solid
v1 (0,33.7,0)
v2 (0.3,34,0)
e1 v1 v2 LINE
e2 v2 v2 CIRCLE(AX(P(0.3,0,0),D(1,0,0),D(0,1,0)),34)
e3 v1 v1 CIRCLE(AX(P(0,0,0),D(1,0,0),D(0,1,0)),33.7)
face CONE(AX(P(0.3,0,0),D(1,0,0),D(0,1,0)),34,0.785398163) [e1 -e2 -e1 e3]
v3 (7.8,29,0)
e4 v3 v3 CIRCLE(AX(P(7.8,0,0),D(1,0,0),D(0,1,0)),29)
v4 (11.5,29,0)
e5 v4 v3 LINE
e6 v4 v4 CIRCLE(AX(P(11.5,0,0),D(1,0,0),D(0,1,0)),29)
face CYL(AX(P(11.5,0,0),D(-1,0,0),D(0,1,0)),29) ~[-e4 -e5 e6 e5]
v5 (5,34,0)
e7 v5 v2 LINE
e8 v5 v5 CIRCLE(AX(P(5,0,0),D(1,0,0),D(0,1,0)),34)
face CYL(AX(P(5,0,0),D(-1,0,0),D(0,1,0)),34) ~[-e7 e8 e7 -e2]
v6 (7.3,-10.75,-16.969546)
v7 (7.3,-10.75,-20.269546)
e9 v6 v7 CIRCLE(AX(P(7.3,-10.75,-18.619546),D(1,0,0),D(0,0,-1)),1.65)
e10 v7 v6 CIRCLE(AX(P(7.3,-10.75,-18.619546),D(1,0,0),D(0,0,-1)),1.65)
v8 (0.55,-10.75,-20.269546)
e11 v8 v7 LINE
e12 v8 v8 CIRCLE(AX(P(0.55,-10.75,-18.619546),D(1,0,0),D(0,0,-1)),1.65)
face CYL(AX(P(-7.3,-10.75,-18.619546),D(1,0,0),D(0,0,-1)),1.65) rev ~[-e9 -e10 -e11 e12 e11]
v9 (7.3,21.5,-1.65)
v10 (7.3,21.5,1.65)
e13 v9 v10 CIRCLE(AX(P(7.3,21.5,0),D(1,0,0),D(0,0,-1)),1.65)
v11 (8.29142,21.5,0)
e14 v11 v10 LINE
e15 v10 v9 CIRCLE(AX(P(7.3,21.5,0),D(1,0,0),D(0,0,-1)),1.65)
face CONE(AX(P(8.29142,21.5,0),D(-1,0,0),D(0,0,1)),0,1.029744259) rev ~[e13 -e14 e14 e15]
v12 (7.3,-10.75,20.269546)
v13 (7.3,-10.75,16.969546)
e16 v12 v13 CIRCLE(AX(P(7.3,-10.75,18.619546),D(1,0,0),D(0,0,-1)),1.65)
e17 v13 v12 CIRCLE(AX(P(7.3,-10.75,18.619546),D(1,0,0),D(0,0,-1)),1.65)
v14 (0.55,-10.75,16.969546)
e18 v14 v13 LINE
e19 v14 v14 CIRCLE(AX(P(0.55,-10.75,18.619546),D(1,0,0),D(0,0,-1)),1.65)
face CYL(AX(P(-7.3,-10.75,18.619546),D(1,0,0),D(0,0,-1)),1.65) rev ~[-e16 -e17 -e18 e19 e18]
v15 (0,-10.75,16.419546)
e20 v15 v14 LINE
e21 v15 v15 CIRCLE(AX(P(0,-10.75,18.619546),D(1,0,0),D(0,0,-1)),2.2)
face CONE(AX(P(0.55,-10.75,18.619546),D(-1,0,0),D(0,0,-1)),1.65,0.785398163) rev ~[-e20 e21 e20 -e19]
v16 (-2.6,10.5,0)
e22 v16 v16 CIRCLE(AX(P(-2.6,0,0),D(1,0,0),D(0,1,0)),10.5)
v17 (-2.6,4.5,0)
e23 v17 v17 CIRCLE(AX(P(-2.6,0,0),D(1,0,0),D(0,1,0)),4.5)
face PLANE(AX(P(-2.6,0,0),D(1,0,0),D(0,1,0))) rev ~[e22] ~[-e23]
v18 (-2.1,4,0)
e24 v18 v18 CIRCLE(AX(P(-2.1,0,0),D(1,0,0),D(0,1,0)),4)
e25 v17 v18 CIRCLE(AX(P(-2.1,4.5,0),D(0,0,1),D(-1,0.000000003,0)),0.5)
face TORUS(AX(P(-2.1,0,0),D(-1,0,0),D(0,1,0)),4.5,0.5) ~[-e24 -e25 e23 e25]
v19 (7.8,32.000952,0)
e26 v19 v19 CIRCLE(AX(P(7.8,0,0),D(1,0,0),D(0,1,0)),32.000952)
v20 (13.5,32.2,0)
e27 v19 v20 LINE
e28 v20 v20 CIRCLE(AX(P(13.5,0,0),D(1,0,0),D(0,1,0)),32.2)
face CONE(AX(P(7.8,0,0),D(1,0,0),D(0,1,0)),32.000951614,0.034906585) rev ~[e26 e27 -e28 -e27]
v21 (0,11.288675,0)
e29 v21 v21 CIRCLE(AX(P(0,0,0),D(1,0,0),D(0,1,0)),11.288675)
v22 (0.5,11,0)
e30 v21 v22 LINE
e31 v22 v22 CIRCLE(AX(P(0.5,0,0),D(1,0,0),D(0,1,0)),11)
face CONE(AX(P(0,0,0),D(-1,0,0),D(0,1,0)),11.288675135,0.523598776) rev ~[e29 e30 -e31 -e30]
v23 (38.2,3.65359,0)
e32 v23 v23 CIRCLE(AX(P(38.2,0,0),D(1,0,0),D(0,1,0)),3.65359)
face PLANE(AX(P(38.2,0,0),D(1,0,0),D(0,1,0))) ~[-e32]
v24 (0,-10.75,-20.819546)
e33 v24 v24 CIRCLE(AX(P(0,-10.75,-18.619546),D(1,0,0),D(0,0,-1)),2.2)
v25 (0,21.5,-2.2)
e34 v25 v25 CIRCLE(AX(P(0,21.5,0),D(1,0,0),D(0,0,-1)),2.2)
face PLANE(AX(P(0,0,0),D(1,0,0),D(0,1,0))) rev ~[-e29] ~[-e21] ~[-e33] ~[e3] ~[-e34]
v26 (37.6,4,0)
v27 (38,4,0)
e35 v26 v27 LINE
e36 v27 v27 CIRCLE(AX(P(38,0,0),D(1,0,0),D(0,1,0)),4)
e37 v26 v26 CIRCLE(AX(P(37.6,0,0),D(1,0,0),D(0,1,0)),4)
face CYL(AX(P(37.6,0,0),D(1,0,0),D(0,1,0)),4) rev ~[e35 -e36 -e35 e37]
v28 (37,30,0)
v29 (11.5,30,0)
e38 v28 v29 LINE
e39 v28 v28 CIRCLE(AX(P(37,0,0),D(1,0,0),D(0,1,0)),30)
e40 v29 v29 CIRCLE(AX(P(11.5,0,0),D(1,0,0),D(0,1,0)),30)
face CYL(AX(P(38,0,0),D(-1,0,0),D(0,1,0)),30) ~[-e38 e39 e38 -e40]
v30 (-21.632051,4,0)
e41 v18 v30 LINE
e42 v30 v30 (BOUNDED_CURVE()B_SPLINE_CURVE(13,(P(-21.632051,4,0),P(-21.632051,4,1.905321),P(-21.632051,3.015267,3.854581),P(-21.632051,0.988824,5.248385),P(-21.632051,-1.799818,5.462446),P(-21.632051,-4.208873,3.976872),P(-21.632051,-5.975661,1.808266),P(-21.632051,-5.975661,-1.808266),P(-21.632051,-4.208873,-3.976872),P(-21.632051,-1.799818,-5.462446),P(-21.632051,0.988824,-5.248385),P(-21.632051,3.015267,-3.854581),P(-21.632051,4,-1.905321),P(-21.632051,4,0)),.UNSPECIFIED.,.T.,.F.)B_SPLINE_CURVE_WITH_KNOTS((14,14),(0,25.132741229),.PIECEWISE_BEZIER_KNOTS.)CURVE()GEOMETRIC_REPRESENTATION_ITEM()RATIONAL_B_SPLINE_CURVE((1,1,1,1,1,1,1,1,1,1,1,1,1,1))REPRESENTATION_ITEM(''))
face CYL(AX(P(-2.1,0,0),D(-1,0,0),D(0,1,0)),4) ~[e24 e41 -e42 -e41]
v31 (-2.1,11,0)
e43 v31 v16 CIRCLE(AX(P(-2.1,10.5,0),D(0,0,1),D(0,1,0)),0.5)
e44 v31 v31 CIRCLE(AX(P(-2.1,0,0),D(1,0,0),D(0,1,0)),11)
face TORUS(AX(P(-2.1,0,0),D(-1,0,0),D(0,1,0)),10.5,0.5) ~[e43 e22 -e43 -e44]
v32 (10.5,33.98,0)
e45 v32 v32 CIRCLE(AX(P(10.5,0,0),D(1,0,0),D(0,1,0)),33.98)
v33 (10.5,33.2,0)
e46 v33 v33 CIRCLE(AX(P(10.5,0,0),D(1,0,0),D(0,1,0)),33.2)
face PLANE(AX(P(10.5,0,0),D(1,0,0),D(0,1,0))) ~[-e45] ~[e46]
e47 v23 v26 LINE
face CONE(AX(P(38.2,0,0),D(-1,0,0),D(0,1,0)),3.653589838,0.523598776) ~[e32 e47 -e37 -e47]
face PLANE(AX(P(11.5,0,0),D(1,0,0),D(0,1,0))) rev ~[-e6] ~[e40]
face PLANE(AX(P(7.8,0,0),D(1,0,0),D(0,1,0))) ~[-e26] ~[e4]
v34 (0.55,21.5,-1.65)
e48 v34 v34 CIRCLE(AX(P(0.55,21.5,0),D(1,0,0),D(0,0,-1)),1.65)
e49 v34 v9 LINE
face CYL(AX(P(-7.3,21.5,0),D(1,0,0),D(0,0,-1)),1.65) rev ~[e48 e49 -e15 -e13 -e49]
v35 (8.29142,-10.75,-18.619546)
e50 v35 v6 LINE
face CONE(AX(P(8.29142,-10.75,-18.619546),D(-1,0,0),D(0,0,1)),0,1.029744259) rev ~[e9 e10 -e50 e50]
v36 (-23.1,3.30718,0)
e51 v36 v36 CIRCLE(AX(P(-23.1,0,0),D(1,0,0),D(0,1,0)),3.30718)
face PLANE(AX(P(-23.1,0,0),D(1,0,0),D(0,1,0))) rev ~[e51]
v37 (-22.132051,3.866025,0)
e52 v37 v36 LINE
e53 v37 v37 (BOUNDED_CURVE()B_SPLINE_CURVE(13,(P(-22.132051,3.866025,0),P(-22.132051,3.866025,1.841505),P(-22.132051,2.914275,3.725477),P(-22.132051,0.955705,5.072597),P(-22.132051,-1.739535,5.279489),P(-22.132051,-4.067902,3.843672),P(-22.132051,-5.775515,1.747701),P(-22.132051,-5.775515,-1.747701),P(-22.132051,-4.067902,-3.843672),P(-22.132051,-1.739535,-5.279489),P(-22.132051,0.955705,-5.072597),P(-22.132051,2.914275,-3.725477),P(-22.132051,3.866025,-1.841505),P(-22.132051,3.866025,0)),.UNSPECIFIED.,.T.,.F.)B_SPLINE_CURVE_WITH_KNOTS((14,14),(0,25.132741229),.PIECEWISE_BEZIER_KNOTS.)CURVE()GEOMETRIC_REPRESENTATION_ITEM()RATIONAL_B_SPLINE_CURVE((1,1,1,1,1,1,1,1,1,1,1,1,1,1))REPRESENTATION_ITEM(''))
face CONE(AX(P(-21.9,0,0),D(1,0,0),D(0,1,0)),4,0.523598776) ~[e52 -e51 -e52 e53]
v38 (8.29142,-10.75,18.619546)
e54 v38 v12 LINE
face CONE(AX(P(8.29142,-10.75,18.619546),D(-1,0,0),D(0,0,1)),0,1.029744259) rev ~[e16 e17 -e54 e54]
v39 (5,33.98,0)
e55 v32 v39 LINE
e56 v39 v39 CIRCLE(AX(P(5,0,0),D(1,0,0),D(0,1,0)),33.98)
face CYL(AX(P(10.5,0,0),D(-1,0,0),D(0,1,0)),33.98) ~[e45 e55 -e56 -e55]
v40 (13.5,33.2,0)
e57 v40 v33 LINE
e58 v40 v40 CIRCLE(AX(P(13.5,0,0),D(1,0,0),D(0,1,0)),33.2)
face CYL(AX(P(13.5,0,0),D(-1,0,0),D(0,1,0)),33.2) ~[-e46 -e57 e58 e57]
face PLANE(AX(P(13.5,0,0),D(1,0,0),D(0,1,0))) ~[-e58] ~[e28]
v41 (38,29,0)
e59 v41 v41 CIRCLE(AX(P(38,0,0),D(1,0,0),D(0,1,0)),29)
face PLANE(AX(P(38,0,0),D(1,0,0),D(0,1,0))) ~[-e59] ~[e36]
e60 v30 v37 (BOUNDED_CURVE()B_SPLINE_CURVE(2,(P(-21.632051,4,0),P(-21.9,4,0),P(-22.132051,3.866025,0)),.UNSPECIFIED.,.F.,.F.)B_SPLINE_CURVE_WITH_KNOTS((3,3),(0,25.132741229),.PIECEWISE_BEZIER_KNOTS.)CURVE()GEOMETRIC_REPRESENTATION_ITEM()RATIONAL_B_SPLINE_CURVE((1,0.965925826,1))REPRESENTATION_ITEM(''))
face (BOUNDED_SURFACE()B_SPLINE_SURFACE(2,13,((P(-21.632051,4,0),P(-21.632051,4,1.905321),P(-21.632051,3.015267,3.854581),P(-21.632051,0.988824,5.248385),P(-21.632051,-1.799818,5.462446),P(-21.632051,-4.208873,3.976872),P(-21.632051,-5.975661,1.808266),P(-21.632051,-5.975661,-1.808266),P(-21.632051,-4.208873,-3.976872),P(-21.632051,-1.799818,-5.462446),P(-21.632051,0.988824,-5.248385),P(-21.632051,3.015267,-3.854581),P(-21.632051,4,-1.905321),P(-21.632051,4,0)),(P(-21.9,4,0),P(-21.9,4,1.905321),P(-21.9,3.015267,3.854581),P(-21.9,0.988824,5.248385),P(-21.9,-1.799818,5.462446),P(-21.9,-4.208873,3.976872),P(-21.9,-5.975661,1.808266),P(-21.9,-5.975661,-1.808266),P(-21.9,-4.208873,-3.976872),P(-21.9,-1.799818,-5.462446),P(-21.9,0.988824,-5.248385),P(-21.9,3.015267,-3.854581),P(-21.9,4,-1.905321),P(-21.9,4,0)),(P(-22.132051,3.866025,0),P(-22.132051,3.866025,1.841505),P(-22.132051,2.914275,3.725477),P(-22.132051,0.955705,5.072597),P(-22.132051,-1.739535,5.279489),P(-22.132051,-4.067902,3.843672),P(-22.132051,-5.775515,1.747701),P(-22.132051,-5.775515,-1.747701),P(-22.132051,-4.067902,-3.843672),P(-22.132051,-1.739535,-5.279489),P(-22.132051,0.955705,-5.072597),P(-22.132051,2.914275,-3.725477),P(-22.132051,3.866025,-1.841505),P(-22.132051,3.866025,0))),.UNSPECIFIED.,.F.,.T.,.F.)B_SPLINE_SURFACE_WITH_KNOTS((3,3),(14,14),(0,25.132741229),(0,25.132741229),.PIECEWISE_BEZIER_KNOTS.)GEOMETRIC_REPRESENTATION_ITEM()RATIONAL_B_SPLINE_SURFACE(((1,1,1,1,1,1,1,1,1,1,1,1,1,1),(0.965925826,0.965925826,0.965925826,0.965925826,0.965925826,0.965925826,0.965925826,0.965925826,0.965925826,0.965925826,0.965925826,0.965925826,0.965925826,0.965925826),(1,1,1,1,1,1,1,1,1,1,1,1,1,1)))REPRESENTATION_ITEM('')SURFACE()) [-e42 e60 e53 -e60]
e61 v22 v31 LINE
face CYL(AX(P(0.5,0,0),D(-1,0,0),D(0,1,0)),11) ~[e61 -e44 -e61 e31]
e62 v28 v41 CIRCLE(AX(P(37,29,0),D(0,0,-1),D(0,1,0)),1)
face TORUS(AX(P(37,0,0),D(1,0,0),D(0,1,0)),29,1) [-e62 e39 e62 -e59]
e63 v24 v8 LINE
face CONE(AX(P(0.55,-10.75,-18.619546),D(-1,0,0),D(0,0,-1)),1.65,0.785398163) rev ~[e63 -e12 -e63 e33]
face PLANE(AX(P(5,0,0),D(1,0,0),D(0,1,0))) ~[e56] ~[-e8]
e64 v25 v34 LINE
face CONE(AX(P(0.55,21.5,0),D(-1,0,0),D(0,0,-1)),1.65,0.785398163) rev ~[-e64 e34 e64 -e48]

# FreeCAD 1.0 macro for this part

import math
import FreeCAD as App
import Part
import Sketcher
from FreeCAD import Vector
Q = App.Units.Quantity


def edges_at(feature, points):
    """Names of the edges that pass closest to the given points."""
    edges = feature.Shape.Edges
    near = lambda p: min(range(len(edges)), key=lambda i: edges[i].distToShape(Part.Vertex(*p))[0])
    return sorted({f"Edge{near(p) + 1}" for p in points})

doc = App.newDocument("Part")
body = doc.addObject("PartDesign::Body", "Body")

# Sketch on XY plane
sketch1 = body.newObject("Sketcher::SketchObject", "Sketch")
sketch1.AttachmentSupport = (doc.getObject("XY_Plane"), [""])
sketch1.MapMode = "FlatFace"
sketch1.addGeometry(Part.LineSegment(Vector(-23.1, 3.30718, 0), Vector(-23.1, 0, 0)), False)
sketch1.addGeometry(Part.LineSegment(Vector(-23.1, 0, 0), Vector(38.2, 0, 0)), False)
sketch1.addGeometry(Part.LineSegment(Vector(38.2, 0, 0), Vector(38.2, 3.65359, 0)), False)
sketch1.addGeometry(Part.LineSegment(Vector(38.2, 3.65359, 0), Vector(37.6, 4, 0)), False)
sketch1.addGeometry(Part.LineSegment(Vector(37.6, 4, 0), Vector(38, 4, 0)), False)
sketch1.addGeometry(Part.LineSegment(Vector(38, 4, 0), Vector(38, 30, 0)), False)
sketch1.addGeometry(Part.LineSegment(Vector(38, 30, 0), Vector(11.5, 30, 0)), False)
sketch1.addGeometry(Part.LineSegment(Vector(11.5, 30, 0), Vector(11.5, 29, 0)), False)
sketch1.addGeometry(Part.LineSegment(Vector(11.5, 29, 0), Vector(7.8, 29, 0)), False)
sketch1.addGeometry(Part.LineSegment(Vector(7.8, 29, 0), Vector(7.8, 32.000952, 0)), False)
sketch1.addGeometry(Part.LineSegment(Vector(7.8, 32.000952, 0), Vector(13.5, 32.2, 0)), False)
sketch1.addGeometry(Part.LineSegment(Vector(13.5, 32.2, 0), Vector(13.5, 33.2, 0)), False)
sketch1.addGeometry(Part.LineSegment(Vector(13.5, 33.2, 0), Vector(10.5, 33.2, 0)), False)
sketch1.addGeometry(Part.LineSegment(Vector(10.5, 33.2, 0), Vector(10.5, 33.98, 0)), False)
sketch1.addGeometry(Part.LineSegment(Vector(10.5, 33.98, 0), Vector(5, 33.98, 0)), False)
sketch1.addGeometry(Part.LineSegment(Vector(5, 33.98, 0), Vector(5, 34, 0)), False)
sketch1.addGeometry(Part.LineSegment(Vector(5, 34, 0), Vector(0, 34, 0)), False)
sketch1.addGeometry(Part.LineSegment(Vector(0, 34, 0), Vector(0, 11.288675, 0)), False)
sketch1.addGeometry(Part.LineSegment(Vector(0, 11.288675, 0), Vector(0.5, 11, 0)), False)
sketch1.addGeometry(Part.LineSegment(Vector(0.5, 11, 0), Vector(-2.6, 11, 0)), False)
sketch1.addGeometry(Part.LineSegment(Vector(-2.6, 11, 0), Vector(-2.6, 4.5, 0)), False)
sketch1.addGeometry(Part.ArcOfCircle(Part.Circle(Vector(-2.1, 4.5, 0), Vector(0, 0, 1), 0.5), math.radians(180), math.radians(270)), False)
sketch1.addGeometry(Part.LineSegment(Vector(-2.1, 4, 0), Vector(-21.9, 4, 0)), False)
sketch1.addGeometry(Part.LineSegment(Vector(-21.9, 4, 0), Vector(-23.1, 3.30718, 0)), False)
sketch1.addConstraint(Sketcher.Constraint("Coincident", 0, 2, 1, 1))
sketch1.addConstraint(Sketcher.Constraint("Coincident", 1, 2, 2, 1))
sketch1.addConstraint(Sketcher.Constraint("Coincident", 2, 2, 3, 1))
sketch1.addConstraint(Sketcher.Constraint("Coincident", 3, 2, 4, 1))
sketch1.addConstraint(Sketcher.Constraint("Coincident", 4, 2, 5, 1))
sketch1.addConstraint(Sketcher.Constraint("Coincident", 5, 2, 6, 1))
sketch1.addConstraint(Sketcher.Constraint("Coincident", 6, 2, 7, 1))
sketch1.addConstraint(Sketcher.Constraint("Coincident", 7, 2, 8, 1))
sketch1.addConstraint(Sketcher.Constraint("Coincident", 8, 2, 9, 1))
sketch1.addConstraint(Sketcher.Constraint("Coincident", 9, 2, 10, 1))
sketch1.addConstraint(Sketcher.Constraint("Coincident", 10, 2, 11, 1))
sketch1.addConstraint(Sketcher.Constraint("Coincident", 11, 2, 12, 1))
sketch1.addConstraint(Sketcher.Constraint("Coincident", 12, 2, 13, 1))
sketch1.addConstraint(Sketcher.Constraint("Coincident", 13, 2, 14, 1))
sketch1.addConstraint(Sketcher.Constraint("Coincident", 14, 2, 15, 1))
sketch1.addConstraint(Sketcher.Constraint("Coincident", 15, 2, 16, 1))
sketch1.addConstraint(Sketcher.Constraint("Coincident", 16, 2, 17, 1))
sketch1.addConstraint(Sketcher.Constraint("Coincident", 17, 2, 18, 1))
sketch1.addConstraint(Sketcher.Constraint("Coincident", 18, 2, 19, 1))
sketch1.addConstraint(Sketcher.Constraint("Coincident", 19, 2, 20, 1))
sketch1.addConstraint(Sketcher.Constraint("Tangent", 20, 2, 21, 1))
sketch1.addConstraint(Sketcher.Constraint("Tangent", 21, 2, 22, 1))
sketch1.addConstraint(Sketcher.Constraint("Coincident", 22, 2, 23, 1))
sketch1.addConstraint(Sketcher.Constraint("Coincident", 23, 2, 0, 1))
sketch1.addConstraint(Sketcher.Constraint("Vertical", 0))
sketch1.addConstraint(Sketcher.Constraint("Horizontal", 1))
sketch1.addConstraint(Sketcher.Constraint("Vertical", 2))
sketch1.addConstraint(Sketcher.Constraint("Horizontal", 4))
sketch1.addConstraint(Sketcher.Constraint("Vertical", 5))
sketch1.addConstraint(Sketcher.Constraint("Horizontal", 6))
sketch1.addConstraint(Sketcher.Constraint("Vertical", 7))
sketch1.addConstraint(Sketcher.Constraint("Horizontal", 8))
sketch1.addConstraint(Sketcher.Constraint("Vertical", 9))
sketch1.addConstraint(Sketcher.Constraint("Vertical", 11))
sketch1.addConstraint(Sketcher.Constraint("Horizontal", 12))
sketch1.addConstraint(Sketcher.Constraint("Vertical", 13))
sketch1.addConstraint(Sketcher.Constraint("Horizontal", 14))
sketch1.addConstraint(Sketcher.Constraint("Vertical", 15))
sketch1.addConstraint(Sketcher.Constraint("Horizontal", 16))
sketch1.addConstraint(Sketcher.Constraint("Vertical", 17))
sketch1.addConstraint(Sketcher.Constraint("Horizontal", 19))
sketch1.addConstraint(Sketcher.Constraint("Vertical", 20))
sketch1.addConstraint(Sketcher.Constraint("Horizontal", 22))
sketch1.addConstraint(Sketcher.Constraint("PointOnObject", 0, 2, -1))
sketch1.addConstraint(Sketcher.Constraint("PointOnObject", 16, 2, -2))
sketch1.addConstraint(Sketcher.Constraint("Parallel", 3, 18))
sketch1.addConstraint(Sketcher.Constraint("Horizontal", 4, 2, 21, 2))
sketch1.addConstraint(Sketcher.Constraint("Equal", 7, 11))
sketch1.addConstraint(Sketcher.Constraint("Radius", 21, 0.5))
sketch1.addConstraint(Sketcher.Constraint("DistanceX", 12, 2, 12, 1, 3.0))
sketch1.addConstraint(Sketcher.Constraint("DistanceX", 16, 2, 16, 1, 5.0))
sketch1.addConstraint(Sketcher.Constraint("DistanceY", 5, 1, 5, 2, 26.0))
sketch1.addConstraint(Sketcher.Constraint("DistanceY", 7, 2, 7, 1, 1.0))
sketch1.addConstraint(Sketcher.Constraint("Angle", 3, Q("150 deg")))
sketch1.addConstraint(Sketcher.Constraint("Angle", 10, Q("2 deg")))
sketch1.addConstraint(Sketcher.Constraint("Angle", 23, Q("-150 deg")))
sketch1.addConstraint(Sketcher.Constraint("DistanceX", 1, 1, 1, 2, 61.3))
sketch1.addConstraint(Sketcher.Constraint("DistanceX", 4, 1, 4, 2, 0.4))
sketch1.addConstraint(Sketcher.Constraint("DistanceX", 6, 2, 6, 1, 26.5))
sketch1.addConstraint(Sketcher.Constraint("DistanceX", 8, 2, 8, 1, 3.7))
sketch1.addConstraint(Sketcher.Constraint("DistanceX", 14, 2, 14, 1, 5.5))
sketch1.addConstraint(Sketcher.Constraint("DistanceX", 19, 2, 19, 1, 3.1))
sketch1.addConstraint(Sketcher.Constraint("DistanceX", 22, 2, 22, 1, 19.8))
sketch1.addConstraint(Sketcher.Constraint("DistanceY", 20, 2, 20, 1, 6.5))
sketch1.addConstraint(Sketcher.Constraint("DistanceY", -1, 1, 3, 2, 4.0))
sketch1.addConstraint(Sketcher.Constraint("DistanceX", -1, 1, 4, 2, 38.0))
sketch1.addConstraint(Sketcher.Constraint("DistanceY", -1, 1, 15, 2, 34.0))
sketch1.addConstraint(Sketcher.Constraint("DistanceX", 0, 2, 21, 3, 21.0))
sketch1.addConstraint(Sketcher.Constraint("DistanceX", 18, 2, 7, 2, 11.0))
sketch1.addConstraint(Sketcher.Constraint("DistanceY", 13, 1, 13, 2, 0.78))
sketch1.addConstraint(Sketcher.Constraint("DistanceY", 15, 1, 15, 2, 0.02))
revolution = body.newObject("PartDesign::Revolution", "Revolution")
revolution.Profile = sketch1
revolution.ReferenceAxis = (sketch1, ["H_Axis"])
revolution.Angle = 360

# Sketch on YZ plane
sketch2 = body.newObject("Sketcher::SketchObject", "Sketch001")
sketch2.AttachmentSupport = (doc.getObject("YZ_Plane"), [""])
sketch2.MapMode = "FlatFace"
sketch2.addGeometry(Part.Circle(Vector(21.5, 0, 0), Vector(0, 0, 1), 1.6), False)
sketch2.addGeometry(Part.Circle(Vector(-10.8, 18.6, 0), Vector(0, 0, 1), 1.6), False)
sketch2.addGeometry(Part.Circle(Vector(-10.8, -18.6, 0), Vector(0, 0, 1), 1.6), False)
sketch2.addConstraint(Sketcher.Constraint("Equal", 0, 1))
sketch2.addConstraint(Sketcher.Constraint("Equal", 1, 2))
sketch2.addConstraint(Sketcher.Constraint("Symmetric", 1, 3, 2, 3, -1))
sketch2.addConstraint(Sketcher.Constraint("PointOnObject", 0, 3, -1))
sketch2.addConstraint(Sketcher.Constraint("Diameter", 0, 3.3))
sketch2.addConstraint(Sketcher.Constraint("DistanceX", -1, 1, 0, 3, 21.5))
sketch2.addConstraint(Sketcher.Constraint("DistanceX", 1, 3, -1, 1, 10.75))
sketch2.addConstraint(Sketcher.Constraint("DistanceY", -1, 1, 1, 3, 18.619546))
doc.recompute()
hole = body.newObject("PartDesign::Hole", "Hole")
hole.Profile = sketch2
hole.ThreadType = "None"
hole.Diameter = 3.3
hole.DepthType = "Dimension"
hole.Depth = 7.3
hole.DrillPoint = "Angled"
hole.DrillPointAngle = 118
hole.Reversed = True
doc.recompute()

chamfer = body.newObject("PartDesign::Chamfer", "Chamfer")
chamfer.Base = (hole, edges_at(hole, [(0, -10.75, -16.97), (0, -10.75, 20.27), (0, 21.5, 1.65)]))
chamfer.Size = 0.55
doc.recompute()

chamfer2 = body.newObject("PartDesign::Chamfer", "Chamfer001")
chamfer2.Base = (chamfer, edges_at(chamfer, [(0, -34, 0)]))
chamfer2.Size = 0.3
doc.recompute()

fillet = body.newObject("PartDesign::Fillet", "Fillet")
fillet.Base = (chamfer2, edges_at(chamfer2, [(-2.6, -11, 0)]))
fillet.Radius = 0.5
doc.recompute()

fillet2 = body.newObject("PartDesign::Fillet", "Fillet001")
fillet2.Base = (fillet, edges_at(fillet, [(-21.9, -4, 0), (38, -30, 0)]))
fillet2.Radius = 1

doc.recompute()
